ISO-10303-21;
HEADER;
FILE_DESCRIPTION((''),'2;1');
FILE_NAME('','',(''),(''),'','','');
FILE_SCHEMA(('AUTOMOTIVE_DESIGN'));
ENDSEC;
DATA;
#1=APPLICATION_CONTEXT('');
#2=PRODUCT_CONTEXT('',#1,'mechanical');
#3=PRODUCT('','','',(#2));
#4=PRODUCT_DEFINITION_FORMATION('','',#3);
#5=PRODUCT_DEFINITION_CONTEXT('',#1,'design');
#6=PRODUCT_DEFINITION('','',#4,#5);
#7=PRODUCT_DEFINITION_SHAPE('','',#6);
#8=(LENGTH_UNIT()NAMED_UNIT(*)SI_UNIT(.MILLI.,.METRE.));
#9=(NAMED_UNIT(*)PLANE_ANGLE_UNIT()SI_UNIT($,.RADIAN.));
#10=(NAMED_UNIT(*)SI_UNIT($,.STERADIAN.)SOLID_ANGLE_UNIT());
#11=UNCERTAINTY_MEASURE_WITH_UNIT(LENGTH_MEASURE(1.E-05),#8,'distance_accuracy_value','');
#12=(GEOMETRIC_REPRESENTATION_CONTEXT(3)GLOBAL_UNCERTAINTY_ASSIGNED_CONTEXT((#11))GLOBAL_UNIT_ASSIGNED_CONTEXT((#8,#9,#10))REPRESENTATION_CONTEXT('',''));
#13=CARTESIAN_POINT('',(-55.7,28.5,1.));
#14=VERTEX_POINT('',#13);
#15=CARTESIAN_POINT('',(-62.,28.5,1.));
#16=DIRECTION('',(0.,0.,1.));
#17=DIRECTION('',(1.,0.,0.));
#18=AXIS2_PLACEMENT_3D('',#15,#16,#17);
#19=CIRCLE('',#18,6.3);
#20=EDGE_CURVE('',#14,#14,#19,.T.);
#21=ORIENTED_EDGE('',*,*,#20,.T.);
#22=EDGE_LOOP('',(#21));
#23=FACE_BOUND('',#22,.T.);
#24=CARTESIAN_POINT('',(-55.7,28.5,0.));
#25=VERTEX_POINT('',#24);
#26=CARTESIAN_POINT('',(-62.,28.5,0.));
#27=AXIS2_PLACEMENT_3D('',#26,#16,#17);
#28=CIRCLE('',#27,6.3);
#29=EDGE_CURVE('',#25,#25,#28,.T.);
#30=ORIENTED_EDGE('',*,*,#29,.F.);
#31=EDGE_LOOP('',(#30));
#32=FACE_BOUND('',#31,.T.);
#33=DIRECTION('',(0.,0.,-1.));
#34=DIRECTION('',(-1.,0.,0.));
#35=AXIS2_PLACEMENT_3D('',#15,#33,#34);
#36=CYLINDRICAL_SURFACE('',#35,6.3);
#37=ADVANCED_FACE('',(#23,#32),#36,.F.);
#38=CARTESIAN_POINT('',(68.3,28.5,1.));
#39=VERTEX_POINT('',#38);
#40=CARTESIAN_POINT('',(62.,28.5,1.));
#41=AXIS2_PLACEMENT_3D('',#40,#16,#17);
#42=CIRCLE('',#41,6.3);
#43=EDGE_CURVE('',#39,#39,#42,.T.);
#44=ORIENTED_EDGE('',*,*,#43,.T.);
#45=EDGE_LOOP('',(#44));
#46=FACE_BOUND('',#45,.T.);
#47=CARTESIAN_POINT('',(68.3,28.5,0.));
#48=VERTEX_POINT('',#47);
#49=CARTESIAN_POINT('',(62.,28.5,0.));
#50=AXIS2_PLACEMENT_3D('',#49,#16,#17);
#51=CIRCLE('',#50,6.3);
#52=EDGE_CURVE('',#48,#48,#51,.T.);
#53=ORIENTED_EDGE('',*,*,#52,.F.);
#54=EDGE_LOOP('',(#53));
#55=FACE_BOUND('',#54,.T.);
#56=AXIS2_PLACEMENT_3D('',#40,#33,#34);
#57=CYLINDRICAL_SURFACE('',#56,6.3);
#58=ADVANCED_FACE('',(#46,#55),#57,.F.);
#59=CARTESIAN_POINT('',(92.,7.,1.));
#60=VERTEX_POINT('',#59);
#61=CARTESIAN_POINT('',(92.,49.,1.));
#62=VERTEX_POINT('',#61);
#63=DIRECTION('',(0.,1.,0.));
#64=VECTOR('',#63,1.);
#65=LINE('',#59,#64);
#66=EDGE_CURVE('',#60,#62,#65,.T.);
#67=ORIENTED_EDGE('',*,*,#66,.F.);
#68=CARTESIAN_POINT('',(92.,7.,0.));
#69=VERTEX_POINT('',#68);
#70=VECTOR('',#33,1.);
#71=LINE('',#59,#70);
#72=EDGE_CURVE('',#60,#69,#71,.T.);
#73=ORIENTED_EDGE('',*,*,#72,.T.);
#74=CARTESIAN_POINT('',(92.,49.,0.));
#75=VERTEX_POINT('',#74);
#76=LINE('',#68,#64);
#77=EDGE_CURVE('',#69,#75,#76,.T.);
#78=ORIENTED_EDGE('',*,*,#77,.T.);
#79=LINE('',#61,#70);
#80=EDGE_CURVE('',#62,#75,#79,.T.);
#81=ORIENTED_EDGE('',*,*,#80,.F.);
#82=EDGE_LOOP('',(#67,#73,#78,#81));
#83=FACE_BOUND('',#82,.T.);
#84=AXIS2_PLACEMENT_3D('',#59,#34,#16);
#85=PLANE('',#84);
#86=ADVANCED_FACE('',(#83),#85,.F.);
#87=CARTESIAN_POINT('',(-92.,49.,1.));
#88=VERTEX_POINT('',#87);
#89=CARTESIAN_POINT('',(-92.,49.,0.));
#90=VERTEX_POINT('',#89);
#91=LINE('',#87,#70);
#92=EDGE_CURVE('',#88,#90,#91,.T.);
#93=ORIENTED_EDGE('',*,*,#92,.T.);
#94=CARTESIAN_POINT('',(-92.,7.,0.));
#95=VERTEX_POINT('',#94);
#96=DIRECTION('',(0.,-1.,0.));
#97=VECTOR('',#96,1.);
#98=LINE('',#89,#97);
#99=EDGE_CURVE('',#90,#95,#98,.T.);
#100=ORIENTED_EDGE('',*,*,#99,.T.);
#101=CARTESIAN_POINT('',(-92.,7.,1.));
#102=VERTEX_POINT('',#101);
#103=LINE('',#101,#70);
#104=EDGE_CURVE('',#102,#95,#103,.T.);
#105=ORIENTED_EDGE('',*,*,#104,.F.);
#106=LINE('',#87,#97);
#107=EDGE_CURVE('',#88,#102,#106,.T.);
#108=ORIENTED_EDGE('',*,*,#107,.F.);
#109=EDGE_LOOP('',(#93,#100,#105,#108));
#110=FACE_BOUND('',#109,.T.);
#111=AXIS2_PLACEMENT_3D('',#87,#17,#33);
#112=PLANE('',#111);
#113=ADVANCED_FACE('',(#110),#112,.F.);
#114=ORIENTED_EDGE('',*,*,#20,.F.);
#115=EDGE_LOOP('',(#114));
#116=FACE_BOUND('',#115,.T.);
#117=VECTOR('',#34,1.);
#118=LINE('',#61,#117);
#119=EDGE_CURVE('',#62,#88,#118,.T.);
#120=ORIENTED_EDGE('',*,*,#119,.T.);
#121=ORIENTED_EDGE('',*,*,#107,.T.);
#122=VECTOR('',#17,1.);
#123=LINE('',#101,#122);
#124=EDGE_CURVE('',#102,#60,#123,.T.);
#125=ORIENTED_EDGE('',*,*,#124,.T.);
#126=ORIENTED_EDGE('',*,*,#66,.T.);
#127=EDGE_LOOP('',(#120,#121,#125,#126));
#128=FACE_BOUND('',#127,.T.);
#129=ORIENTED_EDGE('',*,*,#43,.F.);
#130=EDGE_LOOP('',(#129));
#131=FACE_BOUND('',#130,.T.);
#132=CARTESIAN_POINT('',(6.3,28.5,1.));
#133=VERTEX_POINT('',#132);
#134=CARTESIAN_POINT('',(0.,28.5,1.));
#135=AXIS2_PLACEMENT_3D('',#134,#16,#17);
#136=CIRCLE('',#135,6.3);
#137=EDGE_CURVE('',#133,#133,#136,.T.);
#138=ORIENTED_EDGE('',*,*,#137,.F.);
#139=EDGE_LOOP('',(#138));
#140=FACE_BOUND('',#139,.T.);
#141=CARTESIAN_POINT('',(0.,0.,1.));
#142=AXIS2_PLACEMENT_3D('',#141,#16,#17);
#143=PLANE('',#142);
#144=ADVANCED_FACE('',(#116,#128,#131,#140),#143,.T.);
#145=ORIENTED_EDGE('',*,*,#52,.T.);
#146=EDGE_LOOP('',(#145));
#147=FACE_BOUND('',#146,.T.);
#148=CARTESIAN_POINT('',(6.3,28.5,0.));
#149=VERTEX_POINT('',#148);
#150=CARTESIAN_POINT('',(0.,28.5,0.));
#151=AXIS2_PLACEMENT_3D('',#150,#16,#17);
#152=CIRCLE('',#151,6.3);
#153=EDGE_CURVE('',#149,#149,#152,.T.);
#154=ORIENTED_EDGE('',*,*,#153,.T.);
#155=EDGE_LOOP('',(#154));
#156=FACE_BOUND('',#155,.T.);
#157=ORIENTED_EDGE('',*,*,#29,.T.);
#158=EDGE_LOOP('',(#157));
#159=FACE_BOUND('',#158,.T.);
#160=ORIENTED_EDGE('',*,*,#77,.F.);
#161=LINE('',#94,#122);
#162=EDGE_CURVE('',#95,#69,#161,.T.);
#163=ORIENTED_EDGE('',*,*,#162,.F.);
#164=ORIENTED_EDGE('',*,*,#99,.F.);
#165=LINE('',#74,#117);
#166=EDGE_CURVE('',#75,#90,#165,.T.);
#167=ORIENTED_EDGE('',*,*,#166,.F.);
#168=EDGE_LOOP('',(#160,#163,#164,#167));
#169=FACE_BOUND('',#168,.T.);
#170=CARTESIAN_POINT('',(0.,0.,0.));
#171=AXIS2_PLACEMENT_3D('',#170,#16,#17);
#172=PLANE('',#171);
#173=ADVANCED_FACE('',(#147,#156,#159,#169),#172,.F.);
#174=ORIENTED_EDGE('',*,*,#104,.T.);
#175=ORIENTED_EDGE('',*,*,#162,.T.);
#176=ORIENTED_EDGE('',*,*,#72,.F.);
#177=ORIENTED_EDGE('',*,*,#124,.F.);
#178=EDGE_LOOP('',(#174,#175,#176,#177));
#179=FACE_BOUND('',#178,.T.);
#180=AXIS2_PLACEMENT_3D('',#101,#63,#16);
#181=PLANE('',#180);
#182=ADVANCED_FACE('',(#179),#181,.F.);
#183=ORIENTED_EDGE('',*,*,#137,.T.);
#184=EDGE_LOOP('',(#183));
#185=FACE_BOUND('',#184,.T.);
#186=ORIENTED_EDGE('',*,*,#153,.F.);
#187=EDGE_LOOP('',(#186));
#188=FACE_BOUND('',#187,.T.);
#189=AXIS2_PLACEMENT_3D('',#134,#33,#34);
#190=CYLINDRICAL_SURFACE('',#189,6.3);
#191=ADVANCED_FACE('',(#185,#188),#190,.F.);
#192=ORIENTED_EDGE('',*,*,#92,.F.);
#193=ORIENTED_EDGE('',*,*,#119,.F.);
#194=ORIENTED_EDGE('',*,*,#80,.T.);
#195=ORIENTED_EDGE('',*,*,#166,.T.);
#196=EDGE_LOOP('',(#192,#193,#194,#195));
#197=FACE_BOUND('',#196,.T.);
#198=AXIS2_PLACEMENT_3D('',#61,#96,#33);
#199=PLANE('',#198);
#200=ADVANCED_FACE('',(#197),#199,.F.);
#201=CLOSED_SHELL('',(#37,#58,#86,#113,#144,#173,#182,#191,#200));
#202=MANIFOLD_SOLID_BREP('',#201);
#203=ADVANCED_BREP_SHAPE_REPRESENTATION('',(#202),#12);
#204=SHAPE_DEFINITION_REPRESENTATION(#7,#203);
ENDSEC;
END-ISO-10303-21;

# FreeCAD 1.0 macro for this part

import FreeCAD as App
import Part
import Sketcher
from FreeCAD import Vector


def add_polygon(sketch, points):
    """Adds a closed chain of lines whose ends are joined by coincident constraints."""
    first, n = sketch.GeometryCount, len(points)
    for a, b in zip(points, points[1:] + points[:1]):
        sketch.addGeometry(Part.LineSegment(App.Vector(*a, 0), App.Vector(*b, 0)), False)
    for i in range(n):
        sketch.addConstraint(Sketcher.Constraint("Coincident", first + i, 2, first + (i + 1) % n, 1))

doc = App.newDocument("Part")
body = doc.addObject("PartDesign::Body", "Body")

sketch1 = body.newObject("Sketcher::SketchObject", "Sketch")
sketch1.AttachmentSupport = (doc.getObject("XY_Plane"), [""])
sketch1.MapMode = "FlatFace"
add_polygon(sketch1, [(-92, 49), (-92, 7), (92, 7), (92, 49)])
sketch1.addGeometry(Part.Circle(Vector(-62, 28, 0), Vector(0, 0, 1), 6), False)
sketch1.addGeometry(Part.Circle(Vector(0, 28, 0), Vector(0, 0, 1), 6), False)
sketch1.addGeometry(Part.Circle(Vector(62, 28, 0), Vector(0, 0, 1), 6), False)
sketch1.addConstraint(Sketcher.Constraint("Vertical", 0))
sketch1.addConstraint(Sketcher.Constraint("Horizontal", 1))
sketch1.addConstraint(Sketcher.Constraint("Vertical", 2))
sketch1.addConstraint(Sketcher.Constraint("Horizontal", 3))
sketch1.addConstraint(Sketcher.Constraint("Equal", 4, 5))
sketch1.addConstraint(Sketcher.Constraint("Equal", 5, 6))
sketch1.addConstraint(Sketcher.Constraint("Symmetric", 4, 3, 6, 3, -2))
sketch1.addConstraint(Sketcher.Constraint("PointOnObject", 5, 3, -2))
sketch1.addConstraint(Sketcher.Constraint("Horizontal", 4, 3, 5, 3))
sketch1.addConstraint(Sketcher.Constraint("Diameter", 4, 12.6))
sketch1.addConstraint(Sketcher.Constraint("DistanceX", 1, 1, 1, 2, 184.0))
sketch1.addConstraint(Sketcher.Constraint("DistanceY", 0, 2, 0, 1, 42.0))
sketch1.addConstraint(Sketcher.Constraint("DistanceX", 4, 3, -1, 1, 62.0))
sketch1.addConstraint(Sketcher.Constraint("DistanceX", 0, 2, -1, 1, 92.0))
sketch1.addConstraint(Sketcher.Constraint("DistanceY", -1, 1, 0, 2, 7.0))
sketch1.addConstraint(Sketcher.Constraint("DistanceY", -1, 1, 4, 3, 28.5))
pad1 = body.newObject("PartDesign::Pad", "Pad")
pad1.Profile = sketch1
pad1.Length = 1

doc.recompute()
